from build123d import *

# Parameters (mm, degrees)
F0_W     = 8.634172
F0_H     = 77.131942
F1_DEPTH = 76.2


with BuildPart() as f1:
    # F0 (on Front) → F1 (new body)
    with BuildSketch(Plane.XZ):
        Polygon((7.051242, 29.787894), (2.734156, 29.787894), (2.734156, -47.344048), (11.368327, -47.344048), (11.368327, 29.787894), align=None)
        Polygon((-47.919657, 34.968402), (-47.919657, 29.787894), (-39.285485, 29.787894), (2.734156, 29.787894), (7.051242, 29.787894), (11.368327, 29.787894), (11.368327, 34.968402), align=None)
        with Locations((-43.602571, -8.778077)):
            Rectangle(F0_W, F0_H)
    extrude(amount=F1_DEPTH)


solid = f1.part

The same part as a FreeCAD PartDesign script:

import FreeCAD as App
import Part
import Sketcher

V = App.Vector
Q = App.Units.Quantity


def add_polygon(sketch, points):
    """Adds a closed chain of lines whose ends are joined by coincident constraints."""
    first, n = sketch.GeometryCount, len(points)
    for a, b in zip(points, points[1:] + points[:1]):
        sketch.addGeometry(Part.LineSegment(App.Vector(*a, 0), App.Vector(*b, 0)), False)
    for i in range(n):
        sketch.addConstraint(Sketcher.Constraint("Coincident", first + i, 2, first + (i + 1) % n, 1))

doc = App.newDocument("Part")
body = doc.addObject("PartDesign::Body", "Body")

# Sketch on XZ plane
sketch1 = doc.addObject("Sketcher::SketchObject", "Sketch")
body.addObject(sketch1)
sketch1.AttachmentSupport = (doc.XZ_Plane, [""])
sketch1.MapMode = "FlatFace"
add_polygon(sketch1, [(2.734156, 29.787894), (2.734156, -47.344048), (11.368327, -47.344048), (11.368327, 34.968402), (-47.919657, 34.968402), (-47.919657, -47.344048), (-39.285485, -47.344048), (-39.285485, 29.787894)])  # lines 0-7
sketch1.addConstraint([
    Sketcher.Constraint("Vertical", 0),
    Sketcher.Constraint("Horizontal", 1),
    Sketcher.Constraint("Vertical", 2),
    Sketcher.Constraint("Horizontal", 3),
    Sketcher.Constraint("Vertical", 4),
    Sketcher.Constraint("Horizontal", 5),
    Sketcher.Constraint("Vertical", 6),
    Sketcher.Constraint("Horizontal", 7),
    Sketcher.Constraint("Horizontal", 1, 2, 4, 2),
    Sketcher.Constraint("Equal", 1, 5),
    Sketcher.Constraint("DistanceX", 1, 1, 1, 2, 8.634171),
    Sketcher.Constraint("DistanceX", 7, 1, 7, 2, 42.019641),
    Sketcher.Constraint("DistanceY", 2, 1, 2, 2, 82.31245),
    Sketcher.Constraint("DistanceY", -1, 1, 2, 2, 34.968402),
    Sketcher.Constraint("DistanceY", 0, 2, 0, 1, 77.131942),
    Sketcher.Constraint("DistanceX", -1, 1, 0, 2, 2.734156),
])
pad1 = doc.addObject("PartDesign::Pad", "Pad")
body.addObject(pad1)
pad1.Profile = sketch1
pad1.Length = Q("3 in")

doc.recompute()
